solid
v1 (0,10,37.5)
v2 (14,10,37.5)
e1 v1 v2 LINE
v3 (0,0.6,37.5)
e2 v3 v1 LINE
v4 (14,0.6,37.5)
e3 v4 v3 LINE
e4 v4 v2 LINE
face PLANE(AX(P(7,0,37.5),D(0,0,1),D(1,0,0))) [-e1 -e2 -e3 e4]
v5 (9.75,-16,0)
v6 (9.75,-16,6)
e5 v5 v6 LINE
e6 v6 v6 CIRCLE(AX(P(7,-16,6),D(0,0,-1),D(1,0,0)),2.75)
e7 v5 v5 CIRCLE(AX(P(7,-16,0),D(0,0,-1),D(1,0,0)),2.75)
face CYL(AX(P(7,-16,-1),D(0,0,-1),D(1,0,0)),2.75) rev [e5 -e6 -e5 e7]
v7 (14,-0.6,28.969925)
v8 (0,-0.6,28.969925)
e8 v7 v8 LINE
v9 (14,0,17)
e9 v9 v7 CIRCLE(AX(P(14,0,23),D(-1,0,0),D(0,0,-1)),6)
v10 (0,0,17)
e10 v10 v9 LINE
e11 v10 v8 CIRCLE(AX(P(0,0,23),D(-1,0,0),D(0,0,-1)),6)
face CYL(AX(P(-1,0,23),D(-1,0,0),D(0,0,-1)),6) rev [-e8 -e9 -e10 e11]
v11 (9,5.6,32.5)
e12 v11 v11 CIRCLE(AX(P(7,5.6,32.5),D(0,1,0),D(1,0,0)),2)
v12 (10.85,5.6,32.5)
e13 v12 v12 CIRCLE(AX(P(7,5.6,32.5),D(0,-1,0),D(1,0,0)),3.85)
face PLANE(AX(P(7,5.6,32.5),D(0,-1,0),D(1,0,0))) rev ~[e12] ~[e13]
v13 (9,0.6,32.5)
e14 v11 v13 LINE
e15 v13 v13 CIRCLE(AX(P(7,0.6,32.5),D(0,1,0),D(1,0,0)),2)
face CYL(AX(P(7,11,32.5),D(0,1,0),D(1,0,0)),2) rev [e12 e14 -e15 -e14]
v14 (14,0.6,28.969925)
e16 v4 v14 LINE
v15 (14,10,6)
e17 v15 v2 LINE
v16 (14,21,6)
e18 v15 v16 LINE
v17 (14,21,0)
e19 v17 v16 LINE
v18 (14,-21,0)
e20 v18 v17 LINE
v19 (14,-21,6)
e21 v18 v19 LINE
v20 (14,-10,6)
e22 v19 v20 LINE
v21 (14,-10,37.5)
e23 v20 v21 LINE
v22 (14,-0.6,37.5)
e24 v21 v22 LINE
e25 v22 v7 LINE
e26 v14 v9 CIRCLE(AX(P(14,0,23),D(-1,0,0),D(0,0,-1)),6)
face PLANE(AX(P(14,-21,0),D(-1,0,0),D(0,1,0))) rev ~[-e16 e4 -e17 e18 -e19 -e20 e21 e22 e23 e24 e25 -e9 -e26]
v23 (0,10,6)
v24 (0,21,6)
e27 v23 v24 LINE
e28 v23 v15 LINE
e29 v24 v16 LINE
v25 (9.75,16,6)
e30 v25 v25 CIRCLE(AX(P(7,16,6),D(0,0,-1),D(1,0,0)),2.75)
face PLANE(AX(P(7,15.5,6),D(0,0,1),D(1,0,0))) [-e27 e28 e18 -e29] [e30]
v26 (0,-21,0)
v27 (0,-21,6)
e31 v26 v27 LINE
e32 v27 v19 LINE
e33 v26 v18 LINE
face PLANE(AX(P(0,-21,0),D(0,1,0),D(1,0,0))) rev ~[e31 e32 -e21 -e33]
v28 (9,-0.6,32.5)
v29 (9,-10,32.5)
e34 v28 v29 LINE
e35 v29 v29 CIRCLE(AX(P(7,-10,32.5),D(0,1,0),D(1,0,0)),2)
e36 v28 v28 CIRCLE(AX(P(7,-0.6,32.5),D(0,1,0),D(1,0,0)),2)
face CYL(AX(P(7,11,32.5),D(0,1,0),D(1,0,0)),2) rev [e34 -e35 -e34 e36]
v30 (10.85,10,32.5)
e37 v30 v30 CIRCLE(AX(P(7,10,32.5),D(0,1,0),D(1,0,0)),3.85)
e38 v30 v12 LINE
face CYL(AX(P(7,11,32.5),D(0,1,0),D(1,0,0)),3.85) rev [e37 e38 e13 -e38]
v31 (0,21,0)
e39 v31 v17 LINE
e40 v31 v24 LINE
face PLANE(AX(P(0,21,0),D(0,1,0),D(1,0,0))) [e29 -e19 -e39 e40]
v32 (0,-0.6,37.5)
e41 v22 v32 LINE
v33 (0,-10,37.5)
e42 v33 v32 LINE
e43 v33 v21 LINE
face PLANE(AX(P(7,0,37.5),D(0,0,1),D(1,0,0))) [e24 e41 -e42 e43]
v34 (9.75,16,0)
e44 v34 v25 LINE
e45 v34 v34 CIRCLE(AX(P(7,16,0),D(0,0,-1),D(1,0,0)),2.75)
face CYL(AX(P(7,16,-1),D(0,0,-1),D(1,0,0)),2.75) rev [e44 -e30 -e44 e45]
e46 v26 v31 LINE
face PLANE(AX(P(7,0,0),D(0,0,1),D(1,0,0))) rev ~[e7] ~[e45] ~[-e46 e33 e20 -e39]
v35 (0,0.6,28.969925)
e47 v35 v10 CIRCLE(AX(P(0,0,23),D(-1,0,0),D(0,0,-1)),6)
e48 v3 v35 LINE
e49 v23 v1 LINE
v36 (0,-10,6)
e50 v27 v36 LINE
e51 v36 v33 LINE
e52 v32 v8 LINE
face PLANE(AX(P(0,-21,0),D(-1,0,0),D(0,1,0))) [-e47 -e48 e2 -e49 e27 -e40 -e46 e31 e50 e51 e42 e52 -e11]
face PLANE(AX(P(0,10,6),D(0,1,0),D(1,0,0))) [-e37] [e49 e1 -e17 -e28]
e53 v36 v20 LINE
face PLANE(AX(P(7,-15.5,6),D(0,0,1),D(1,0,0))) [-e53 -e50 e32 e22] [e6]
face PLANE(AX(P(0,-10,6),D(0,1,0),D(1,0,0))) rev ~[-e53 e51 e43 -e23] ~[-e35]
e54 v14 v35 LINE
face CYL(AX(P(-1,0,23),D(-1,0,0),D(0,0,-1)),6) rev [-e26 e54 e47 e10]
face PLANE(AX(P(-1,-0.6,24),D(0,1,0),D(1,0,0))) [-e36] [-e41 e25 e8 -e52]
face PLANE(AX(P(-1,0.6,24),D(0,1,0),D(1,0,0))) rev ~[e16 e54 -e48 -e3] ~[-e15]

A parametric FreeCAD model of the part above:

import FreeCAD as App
import Part
import Sketcher
from FreeCAD import Vector


def add_polygon(sketch, points):
    """Adds a closed chain of lines whose ends are joined by coincident constraints."""
    first, n = sketch.GeometryCount, len(points)
    for a, b in zip(points, points[1:] + points[:1]):
        sketch.addGeometry(Part.LineSegment(App.Vector(*a, 0), App.Vector(*b, 0)), False)
    for i in range(n):
        sketch.addConstraint(Sketcher.Constraint("Coincident", first + i, 2, first + (i + 1) % n, 1))

doc = App.newDocument("Part")
body = doc.addObject("PartDesign::Body", "Body")

sketch1 = body.newObject("Sketcher::SketchObject", "Sketch")
sketch1.AttachmentSupport = (doc.getObject("XY_Plane"), [""])
sketch1.MapMode = "FlatFace"
sketch1.AttachmentOffset = App.Placement(Vector(0, 0, -1), App.Rotation())
sketch1.addGeometry(Part.Circle(Vector(7, -16, 0), Vector(0, 0, 1), 2.8), False)
sketch1.addConstraint(Sketcher.Constraint("Diameter", 0, 5.5))
sketch1.addConstraint(Sketcher.Constraint("DistanceX", -1, 1, 0, 3, 7.0))
sketch1.addConstraint(Sketcher.Constraint("DistanceY", 0, 3, -1, 1, 16.0))
pad1 = body.newObject("PartDesign::Pad", "Pad")
pad1.Profile = sketch1
pad1.Length = 8
body2 = doc.addObject("PartDesign::Body", "Body001")
body2.AllowCompound = True

sketch2 = body2.newObject("Sketcher::SketchObject", "Sketch001")
sketch2.AttachmentSupport = (doc.getObject("XY_Plane001"), [""])
sketch2.MapMode = "FlatFace"
sketch2.AttachmentOffset = App.Placement(Vector(0, 0, -1), App.Rotation())
sketch2.addGeometry(Part.Circle(Vector(7, 16, 0), Vector(0, 0, 1), 2.8), False)
sketch2.addConstraint(Sketcher.Constraint("Diameter", 0, 5.5))
sketch2.addConstraint(Sketcher.Constraint("DistanceX", -1, 1, 0, 3, 7.0))
sketch2.addConstraint(Sketcher.Constraint("DistanceY", -1, 1, 0, 3, 16.0))
pad2 = body2.newObject("PartDesign::Pad", "Pad001")
pad2.Profile = sketch2
pad2.Length = 8
doc.recompute()

boolean = body2.newObject("PartDesign::Boolean", "Boolean")
boolean.Type = "Fuse"
boolean.addObjects([body])
body3 = doc.addObject("PartDesign::Body", "Body002")

sketch3 = body3.newObject("Sketcher::SketchObject", "Sketch002")
sketch3.AttachmentSupport = (doc.getObject("XY_Plane002"), [""])
sketch3.MapMode = "FlatFace"
sketch3.addGeometry(Part.Circle(Vector(0, 0, 0), Vector(0, 0, 1), 2), False)
sketch3.addConstraint(Sketcher.Constraint("Coincident", 0, 3, -1, 1))
sketch3.addConstraint(Sketcher.Constraint("Diameter", 0, 4.0))
pad3 = body3.newObject("PartDesign::Pad", "Pad002")
pad3.Profile = sketch3
pad3.Length = 22
body4 = doc.addObject("PartDesign::Body", "Body003")
doc.recompute()

body3.Placement = App.Placement(Vector(0, 0, 0), App.Rotation(Vector(1, 0, 0), 90))
boolean2 = body4.newObject("PartDesign::Boolean", "Boolean001")
boolean2.Type = "Fuse"
boolean2.addObjects([body3])
body5 = doc.addObject("PartDesign::Body", "Body004")
doc.recompute()

body4.Placement = App.Placement(Vector(7, 11, 32.5), App.Rotation(Vector(0, 0, 1), 0))
boolean3 = body5.newObject("PartDesign::Boolean", "Boolean002")
boolean3.Type = "Fuse"
boolean3.addObjects([body4])
body6 = doc.addObject("PartDesign::Body", "Body005")

sketch4 = body6.newObject("Sketcher::SketchObject", "Sketch003")
sketch4.AttachmentSupport = (doc.getObject("XY_Plane005"), [""])
sketch4.MapMode = "FlatFace"
sketch4.AttachmentOffset = App.Placement(Vector(0, 0, 24), App.Rotation())
add_polygon(sketch4, [(-1, 0.6), (-1, -0.6), (15, -0.6), (15, 0.6)])
sketch4.addConstraint(Sketcher.Constraint("Vertical", 0))
sketch4.addConstraint(Sketcher.Constraint("Horizontal", 1))
sketch4.addConstraint(Sketcher.Constraint("Vertical", 2))
sketch4.addConstraint(Sketcher.Constraint("Horizontal", 3))
sketch4.addConstraint(Sketcher.Constraint("DistanceX", 1, 1, 1, 2, 16.0))
sketch4.addConstraint(Sketcher.Constraint("DistanceY", 0, 2, 0, 1, 1.2))
sketch4.addConstraint(Sketcher.Constraint("DistanceX", 0, 2, -1, 1, 1.0))
sketch4.addConstraint(Sketcher.Constraint("DistanceY", 0, 2, -1, 1, 0.6))
pad4 = body6.newObject("PartDesign::Pad", "Pad003")
pad4.Profile = sketch4
pad4.Length = 15.5
body7 = doc.addObject("PartDesign::Body", "Body006")

sketch5 = body7.newObject("Sketcher::SketchObject", "Sketch004")
sketch5.AttachmentSupport = (doc.getObject("XY_Plane006"), [""])
sketch5.MapMode = "FlatFace"
sketch5.addGeometry(Part.Circle(Vector(0, 0, 0), Vector(0, 0, 1), 6), False)
sketch5.addConstraint(Sketcher.Constraint("Coincident", 0, 3, -1, 1))
sketch5.addConstraint(Sketcher.Constraint("Diameter", 0, 12.0))
pad5 = body7.newObject("PartDesign::Pad", "Pad004")
pad5.Profile = sketch5
pad5.Length = 16
body8 = doc.addObject("PartDesign::Body", "Body007")
doc.recompute()

body7.Placement = App.Placement(Vector(0, 0, 0), App.Rotation(Vector(0, 1, 0), 90))
boolean4 = body8.newObject("PartDesign::Boolean", "Boolean003")
boolean4.Type = "Fuse"
boolean4.addObjects([body7])
body9 = doc.addObject("PartDesign::Body", "Body008")
doc.recompute()

body8.Placement = App.Placement(Vector(-1, 0, 23), App.Rotation(Vector(0, 0, 1), 0))
boolean5 = body9.newObject("PartDesign::Boolean", "Boolean004")
boolean5.Type = "Fuse"
boolean5.addObjects([body8])
body10 = doc.addObject("PartDesign::Body", "Body009")

sketch6 = body10.newObject("Sketcher::SketchObject", "Sketch005")
sketch6.AttachmentSupport = (doc.getObject("XY_Plane009"), [""])
sketch6.MapMode = "FlatFace"
sketch6.addGeometry(Part.Circle(Vector(0, 0, 0), Vector(0, 0, 1), 3.9), False)
sketch6.addConstraint(Sketcher.Constraint("Coincident", 0, 3, -1, 1))
sketch6.addConstraint(Sketcher.Constraint("Diameter", 0, 7.7))
pad6 = body10.newObject("PartDesign::Pad", "Pad005")
pad6.Profile = sketch6
pad6.Length = 5.4
body11 = doc.addObject("PartDesign::Body", "Body010")
doc.recompute()

body10.Placement = App.Placement(Vector(0, 0, 0), App.Rotation(Vector(1, 0, 0), 90))
boolean6 = body11.newObject("PartDesign::Boolean", "Boolean005")
boolean6.Type = "Fuse"
boolean6.addObjects([body10])
body12 = doc.addObject("PartDesign::Body", "Body011")
doc.recompute()

body11.Placement = App.Placement(Vector(7, 11, 32.5), App.Rotation(Vector(0, 0, 1), 0))
boolean7 = body12.newObject("PartDesign::Boolean", "Boolean006")
boolean7.Type = "Fuse"
boolean7.addObjects([body11])
doc.recompute()

boolean8 = body12.newObject("PartDesign::Boolean", "Boolean007")
boolean8.Type = "Fuse"
boolean8.addObjects([body5])
doc.recompute()

boolean9 = body12.newObject("PartDesign::Boolean", "Boolean008")
boolean9.Type = "Fuse"
boolean9.addObjects([body6])
doc.recompute()

boolean10 = body12.newObject("PartDesign::Boolean", "Boolean009")
boolean10.Type = "Fuse"
boolean10.addObjects([body9])
body13 = doc.addObject("PartDesign::Body", "Body012")

sketch7 = body13.newObject("Sketcher::SketchObject", "Sketch006")
sketch7.AttachmentSupport = (doc.getObject("XY_Plane012"), [""])
sketch7.MapMode = "FlatFace"
sketch7.AttachmentOffset = App.Placement(Vector(0, 0, 6), App.Rotation())
add_polygon(sketch7, [(0, -10), (0, -21), (14, -21), (14, -10)])
sketch7.addConstraint(Sketcher.Constraint("Vertical", 0))
sketch7.addConstraint(Sketcher.Constraint("Horizontal", 1))
sketch7.addConstraint(Sketcher.Constraint("Vertical", 2))
sketch7.addConstraint(Sketcher.Constraint("Horizontal", 3))
sketch7.addConstraint(Sketcher.Constraint("PointOnObject", 0, 2, -2))
sketch7.addConstraint(Sketcher.Constraint("DistanceX", 1, 1, 1, 2, 14.0))
sketch7.addConstraint(Sketcher.Constraint("DistanceY", 0, 2, 0, 1, 11.0))
sketch7.addConstraint(Sketcher.Constraint("DistanceY", 0, 2, -1, 1, 21.0))
pad7 = body13.newObject("PartDesign::Pad", "Pad006")
pad7.Profile = sketch7
pad7.Length = 31.5
body14 = doc.addObject("PartDesign::Body", "Body013")
body14.AllowCompound = True

sketch8 = body14.newObject("Sketcher::SketchObject", "Sketch007")
sketch8.AttachmentSupport = (doc.getObject("XY_Plane013"), [""])
sketch8.MapMode = "FlatFace"
sketch8.AttachmentOffset = App.Placement(Vector(0, 0, 6), App.Rotation())
add_polygon(sketch8, [(0, 21), (0, 10), (14, 10), (14, 21)])
sketch8.addConstraint(Sketcher.Constraint("Vertical", 0))
sketch8.addConstraint(Sketcher.Constraint("Horizontal", 1))
sketch8.addConstraint(Sketcher.Constraint("Vertical", 2))
sketch8.addConstraint(Sketcher.Constraint("Horizontal", 3))
sketch8.addConstraint(Sketcher.Constraint("PointOnObject", 0, 2, -2))
sketch8.addConstraint(Sketcher.Constraint("DistanceX", 1, 1, 1, 2, 14.0))
sketch8.addConstraint(Sketcher.Constraint("DistanceY", 0, 2, 0, 1, 11.0))
sketch8.addConstraint(Sketcher.Constraint("DistanceY", -1, 1, 0, 2, 10.0))
pad8 = body14.newObject("PartDesign::Pad", "Pad007")
pad8.Profile = sketch8
pad8.Length = 31.5
doc.recompute()

boolean11 = body14.newObject("PartDesign::Boolean", "Boolean010")
boolean11.Type = "Fuse"
boolean11.addObjects([body13])
body15 = doc.addObject("PartDesign::Body", "Body014")

sketch9 = body15.newObject("Sketcher::SketchObject", "Sketch008")
sketch9.AttachmentSupport = (doc.getObject("XY_Plane014"), [""])
sketch9.MapMode = "FlatFace"
add_polygon(sketch9, [(0, 21), (0, -21), (14, -21), (14, 21)])
sketch9.addConstraint(Sketcher.Constraint("Vertical", 0))
sketch9.addConstraint(Sketcher.Constraint("Horizontal", 1))
sketch9.addConstraint(Sketcher.Constraint("Vertical", 2))
sketch9.addConstraint(Sketcher.Constraint("Horizontal", 3))
sketch9.addConstraint(Sketcher.Constraint("Symmetric", 0, 2, 3, 2, -1, 1))
sketch9.addConstraint(Sketcher.Constraint("DistanceX", 1, 1, 1, 2, 14.0))
sketch9.addConstraint(Sketcher.Constraint("DistanceY", 0, 2, 0, 1, 42.0))
pad9 = body15.newObject("PartDesign::Pad", "Pad008")
pad9.Profile = sketch9
pad9.Length = 37.5
doc.recompute()

boolean12 = body15.newObject("PartDesign::Boolean", "Boolean011")
boolean12.Type = "Cut"
boolean12.addObjects([body14])
doc.recompute()

boolean13 = body15.newObject("PartDesign::Boolean", "Boolean012")
boolean13.Type = "Cut"
boolean13.addObjects([body12])
doc.recompute()

boolean14 = body15.newObject("PartDesign::Boolean", "Boolean013")
boolean14.Type = "Cut"
boolean14.addObjects([body2])

doc.recompute()
